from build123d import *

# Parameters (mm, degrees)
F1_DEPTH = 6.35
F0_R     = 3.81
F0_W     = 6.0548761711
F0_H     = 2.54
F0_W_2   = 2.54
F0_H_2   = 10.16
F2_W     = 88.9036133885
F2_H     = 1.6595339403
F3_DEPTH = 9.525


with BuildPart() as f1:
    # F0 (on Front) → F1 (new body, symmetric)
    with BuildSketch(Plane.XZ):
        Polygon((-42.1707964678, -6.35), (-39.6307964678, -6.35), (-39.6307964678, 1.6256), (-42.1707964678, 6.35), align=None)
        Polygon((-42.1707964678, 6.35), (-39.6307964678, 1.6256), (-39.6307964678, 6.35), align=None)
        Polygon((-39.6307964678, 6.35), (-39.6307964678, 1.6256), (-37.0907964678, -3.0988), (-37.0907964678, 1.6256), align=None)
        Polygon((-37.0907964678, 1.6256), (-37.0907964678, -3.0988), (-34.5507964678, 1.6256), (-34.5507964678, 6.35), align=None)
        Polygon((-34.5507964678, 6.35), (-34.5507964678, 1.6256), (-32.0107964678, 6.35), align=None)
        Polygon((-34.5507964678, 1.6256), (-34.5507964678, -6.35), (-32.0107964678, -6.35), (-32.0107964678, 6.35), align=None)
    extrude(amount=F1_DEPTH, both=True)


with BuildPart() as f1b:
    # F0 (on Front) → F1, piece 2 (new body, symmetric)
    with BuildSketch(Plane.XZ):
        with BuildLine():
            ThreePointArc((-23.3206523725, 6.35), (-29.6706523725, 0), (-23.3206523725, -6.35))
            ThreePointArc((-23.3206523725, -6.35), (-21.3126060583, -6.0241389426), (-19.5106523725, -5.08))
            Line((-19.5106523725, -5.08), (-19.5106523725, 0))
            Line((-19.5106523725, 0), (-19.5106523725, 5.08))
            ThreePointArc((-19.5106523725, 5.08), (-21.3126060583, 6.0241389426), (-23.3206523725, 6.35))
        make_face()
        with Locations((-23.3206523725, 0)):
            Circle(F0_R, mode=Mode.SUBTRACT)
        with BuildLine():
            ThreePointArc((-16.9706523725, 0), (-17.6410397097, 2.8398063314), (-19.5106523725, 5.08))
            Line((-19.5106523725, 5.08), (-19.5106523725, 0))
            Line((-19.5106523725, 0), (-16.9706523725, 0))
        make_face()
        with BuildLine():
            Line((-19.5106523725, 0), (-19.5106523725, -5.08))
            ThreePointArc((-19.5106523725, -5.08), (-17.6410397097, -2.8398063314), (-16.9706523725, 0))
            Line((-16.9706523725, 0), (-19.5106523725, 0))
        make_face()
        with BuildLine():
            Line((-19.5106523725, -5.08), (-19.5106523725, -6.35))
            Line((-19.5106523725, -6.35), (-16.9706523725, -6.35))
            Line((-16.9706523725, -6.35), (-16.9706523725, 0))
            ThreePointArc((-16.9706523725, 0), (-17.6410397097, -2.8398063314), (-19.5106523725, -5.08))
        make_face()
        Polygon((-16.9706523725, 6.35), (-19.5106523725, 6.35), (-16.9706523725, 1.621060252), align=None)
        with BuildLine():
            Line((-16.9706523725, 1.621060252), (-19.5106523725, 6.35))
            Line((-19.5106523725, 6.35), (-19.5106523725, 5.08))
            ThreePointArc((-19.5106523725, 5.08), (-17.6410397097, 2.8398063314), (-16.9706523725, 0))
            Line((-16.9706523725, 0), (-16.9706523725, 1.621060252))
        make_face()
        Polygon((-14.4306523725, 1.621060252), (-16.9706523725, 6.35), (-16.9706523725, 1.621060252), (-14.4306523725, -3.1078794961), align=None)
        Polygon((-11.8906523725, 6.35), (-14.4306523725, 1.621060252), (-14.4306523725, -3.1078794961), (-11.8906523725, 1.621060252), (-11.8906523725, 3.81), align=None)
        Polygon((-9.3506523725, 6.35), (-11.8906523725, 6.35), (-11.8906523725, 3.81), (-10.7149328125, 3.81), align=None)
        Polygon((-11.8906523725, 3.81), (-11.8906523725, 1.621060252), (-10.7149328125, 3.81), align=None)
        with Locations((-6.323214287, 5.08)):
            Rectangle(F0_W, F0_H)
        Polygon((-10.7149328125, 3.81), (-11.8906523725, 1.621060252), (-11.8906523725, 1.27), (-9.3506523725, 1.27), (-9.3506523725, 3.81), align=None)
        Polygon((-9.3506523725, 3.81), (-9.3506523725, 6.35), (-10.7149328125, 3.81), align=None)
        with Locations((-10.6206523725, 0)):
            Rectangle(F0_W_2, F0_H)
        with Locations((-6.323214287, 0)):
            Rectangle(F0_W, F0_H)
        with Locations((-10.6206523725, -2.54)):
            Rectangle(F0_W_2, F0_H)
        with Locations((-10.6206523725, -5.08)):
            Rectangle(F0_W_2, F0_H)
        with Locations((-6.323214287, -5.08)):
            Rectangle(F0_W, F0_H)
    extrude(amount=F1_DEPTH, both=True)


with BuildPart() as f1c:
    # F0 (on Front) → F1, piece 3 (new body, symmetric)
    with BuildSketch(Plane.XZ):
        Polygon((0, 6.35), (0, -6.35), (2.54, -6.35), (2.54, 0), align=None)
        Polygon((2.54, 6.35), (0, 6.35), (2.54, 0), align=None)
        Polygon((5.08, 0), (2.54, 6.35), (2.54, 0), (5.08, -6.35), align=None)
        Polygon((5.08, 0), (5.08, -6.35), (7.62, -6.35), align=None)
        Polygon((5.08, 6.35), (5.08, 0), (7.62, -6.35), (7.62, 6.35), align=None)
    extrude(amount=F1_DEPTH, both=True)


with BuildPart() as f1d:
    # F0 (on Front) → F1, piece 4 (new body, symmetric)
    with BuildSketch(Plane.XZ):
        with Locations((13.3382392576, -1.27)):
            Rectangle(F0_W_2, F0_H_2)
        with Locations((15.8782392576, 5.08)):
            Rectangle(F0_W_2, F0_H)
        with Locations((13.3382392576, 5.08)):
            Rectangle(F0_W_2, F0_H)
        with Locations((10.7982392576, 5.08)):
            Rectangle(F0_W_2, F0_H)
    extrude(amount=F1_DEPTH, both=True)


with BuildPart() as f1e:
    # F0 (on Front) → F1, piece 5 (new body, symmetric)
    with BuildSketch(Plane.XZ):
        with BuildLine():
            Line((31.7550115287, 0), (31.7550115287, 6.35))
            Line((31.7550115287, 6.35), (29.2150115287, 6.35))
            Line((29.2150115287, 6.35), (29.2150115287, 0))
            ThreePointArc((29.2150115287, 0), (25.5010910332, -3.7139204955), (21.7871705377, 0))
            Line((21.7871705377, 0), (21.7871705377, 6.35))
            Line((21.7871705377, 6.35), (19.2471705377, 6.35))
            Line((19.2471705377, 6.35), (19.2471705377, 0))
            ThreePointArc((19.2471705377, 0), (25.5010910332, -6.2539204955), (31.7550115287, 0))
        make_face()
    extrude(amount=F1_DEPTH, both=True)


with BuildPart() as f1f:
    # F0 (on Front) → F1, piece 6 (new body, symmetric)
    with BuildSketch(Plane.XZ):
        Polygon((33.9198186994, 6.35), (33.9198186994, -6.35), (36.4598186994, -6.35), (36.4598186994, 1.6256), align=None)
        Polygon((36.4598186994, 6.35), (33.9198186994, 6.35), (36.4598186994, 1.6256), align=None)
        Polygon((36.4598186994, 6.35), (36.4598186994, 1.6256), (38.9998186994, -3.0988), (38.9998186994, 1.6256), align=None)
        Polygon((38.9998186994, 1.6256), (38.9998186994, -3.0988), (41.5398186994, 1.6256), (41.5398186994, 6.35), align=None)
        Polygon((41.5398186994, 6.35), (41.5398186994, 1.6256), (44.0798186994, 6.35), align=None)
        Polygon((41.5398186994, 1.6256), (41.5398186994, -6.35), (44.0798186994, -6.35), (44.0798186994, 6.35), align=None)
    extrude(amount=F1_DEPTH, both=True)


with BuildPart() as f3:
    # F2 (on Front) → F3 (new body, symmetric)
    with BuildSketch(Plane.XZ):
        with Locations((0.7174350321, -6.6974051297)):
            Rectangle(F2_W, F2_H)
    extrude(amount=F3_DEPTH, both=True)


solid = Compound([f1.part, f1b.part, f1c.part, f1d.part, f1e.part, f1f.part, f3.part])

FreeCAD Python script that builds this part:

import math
import FreeCAD as App
import Part
import Sketcher

V = App.Vector
Q = App.Units.Quantity


def add_polygon(sketch, points):
    """Adds a closed chain of lines whose ends are joined by coincident constraints."""
    first, n = sketch.GeometryCount, len(points)
    for a, b in zip(points, points[1:] + points[:1]):
        sketch.addGeometry(Part.LineSegment(App.Vector(*a, 0), App.Vector(*b, 0)), False)
    for i in range(n):
        sketch.addConstraint(Sketcher.Constraint("Coincident", first + i, 2, first + (i + 1) % n, 1))

doc = App.newDocument("Part")
body = doc.addObject("PartDesign::Body", "Body")

sketch1 = body.newObject("Sketcher::SketchObject", "Sketch")
sketch1.AttachmentSupport = (doc.getObject("XZ_Plane"), [""])
sketch1.MapMode = "FlatFace"
add_polygon(sketch1, [(-42.170796, -6.35), (-39.630796, -6.35), (-39.630796, 1.6256), (-37.090796, -3.0988), (-34.550796, 1.6256), (-34.550796, -6.35), (-32.010796, -6.35), (-32.010796, 6.35), (-34.550796, 6.35), (-37.090796, 1.6256), (-39.630796, 6.35), (-42.170796, 6.35)])
sketch1.addConstraint([
    Sketcher.Constraint("Horizontal", 0),
    Sketcher.Constraint("Vertical", 1),
    Sketcher.Constraint("Vertical", 4),
    Sketcher.Constraint("Horizontal", 5),
    Sketcher.Constraint("Vertical", 6),
    Sketcher.Constraint("Horizontal", 7),
    Sketcher.Constraint("Horizontal", 10),
    Sketcher.Constraint("Vertical", 11),
    Sketcher.Constraint("Symmetric", 4, 2, 7, 2, -1),
    Sketcher.Constraint("Symmetric", 0, 2, 9, 2, -1),
    Sketcher.Constraint("Parallel", 3, 8),
    Sketcher.Constraint("Parallel", 2, 9),
    Sketcher.Constraint("Horizontal", 1, 2, 3, 2),
    Sketcher.Constraint("Horizontal", 0, 2, 4, 2),
    Sketcher.Constraint("Horizontal", 3, 2, 8, 2),
    Sketcher.Constraint("Equal", 0, 5),
    Sketcher.Constraint("Equal", 2, 3),
    Sketcher.Constraint("DistanceX", 0, 1, 0, 2, Q("0.1 in")),
    Sketcher.Constraint("DistanceY", 6, 1, 6, 2, Q("0.5 in")),
    Sketcher.Constraint("DistanceX", 0, 2, 2, 2, Q("0.1 in")),
    Sketcher.Constraint("DistanceY", 1, 1, 1, 2, Q("0.314 in")),
    Sketcher.Constraint("DistanceX", 0, 2, -1, 1, 39.630796),
])
pad1 = body.newObject("PartDesign::Pad", "Pad")
pad1.Profile = sketch1
pad1.Length = Q("0.5 in")
pad1.Midplane = True
body2 = doc.addObject("PartDesign::Body", "Body001")

sketch2 = body2.newObject("Sketcher::SketchObject", "Sketch001")
sketch2.AttachmentSupport = (doc.getObject("XZ_Plane001"), [""])
sketch2.MapMode = "FlatFace"
sketch2.addGeometry([
    Part.ArcOfCircle(Part.Circle(V(-23.320652, 0, 0), V(0, 0, 1), 6.35), math.radians(-90), math.radians(-53.130102)),
    Part.LineSegment(V(-19.510652, -5.08, 0), V(-19.510652, -6.35, 0)),
    Part.LineSegment(V(-19.510652, -6.35, 0), V(-16.970652, -6.35, 0)),
    Part.LineSegment(V(-16.970652, -6.35, 0), V(-16.970652, 1.62106, 0)),
    Part.LineSegment(V(-16.970652, 1.62106, 0), V(-14.430652, -3.107879, 0)),
    Part.LineSegment(V(-14.430652, -3.107879, 0), V(-11.890652, 1.62106, 0)),
    Part.LineSegment(V(-11.890652, 1.62106, 0), V(-11.890652, -6.35, 0)),
    Part.LineSegment(V(-11.890652, -6.35, 0), V(-3.295776, -6.35, 0)),
    Part.LineSegment(V(-3.295776, -6.35, 0), V(-3.295776, -3.81, 0)),
    Part.LineSegment(V(-3.295776, -3.81, 0), V(-9.350652, -3.81, 0)),
    Part.LineSegment(V(-9.350652, -3.81, 0), V(-9.350652, -1.27, 0)),
    Part.LineSegment(V(-9.350652, -1.27, 0), V(-3.295776, -1.27, 0)),
    Part.LineSegment(V(-3.295776, -1.27, 0), V(-3.295776, 1.27, 0)),
    Part.LineSegment(V(-3.295776, 1.27, 0), V(-9.350652, 1.27, 0)),
    Part.LineSegment(V(-9.350652, 1.27, 0), V(-9.350652, 3.81, 0)),
    Part.LineSegment(V(-9.350652, 3.81, 0), V(-3.295776, 3.81, 0)),
    Part.LineSegment(V(-3.295776, 3.81, 0), V(-3.295776, 6.35, 0)),
    Part.LineSegment(V(-3.295776, 6.35, 0), V(-11.890652, 6.35, 0)),
    Part.LineSegment(V(-11.890652, 6.35, 0), V(-14.430652, 1.62106, 0)),
    Part.LineSegment(V(-14.430652, 1.62106, 0), V(-16.970652, 6.35, 0)),
    Part.LineSegment(V(-16.970652, 6.35, 0), V(-19.510652, 6.35, 0)),
    Part.LineSegment(V(-19.510652, 6.35, 0), V(-19.510652, 5.08, 0)),
    Part.ArcOfCircle(Part.Circle(V(-23.320652, 0, 0), V(0, 0, 1), 6.35), math.radians(53.130102), math.radians(90)),
    Part.ArcOfCircle(Part.Circle(V(-23.320652, 0, 0), V(0, 0, 1), 6.35), math.radians(90), math.radians(270)),
    Part.Circle(V(-23.320652, 0, 0), V(0, 0, 1), 3.81),
], False)
sketch2.addConstraint([
    Sketcher.Constraint("Coincident", 0, 2, 1, 1),
    Sketcher.Constraint("Coincident", 1, 2, 2, 1),
    Sketcher.Constraint("Coincident", 2, 2, 3, 1),
    Sketcher.Constraint("Coincident", 3, 2, 4, 1),
    Sketcher.Constraint("Coincident", 4, 2, 5, 1),
    Sketcher.Constraint("Coincident", 5, 2, 6, 1),
    Sketcher.Constraint("Coincident", 6, 2, 7, 1),
    Sketcher.Constraint("Coincident", 7, 2, 8, 1),
    Sketcher.Constraint("Coincident", 8, 2, 9, 1),
    Sketcher.Constraint("Coincident", 9, 2, 10, 1),
    Sketcher.Constraint("Coincident", 10, 2, 11, 1),
    Sketcher.Constraint("Coincident", 11, 2, 12, 1),
    Sketcher.Constraint("Coincident", 12, 2, 13, 1),
    Sketcher.Constraint("Coincident", 13, 2, 14, 1),
    Sketcher.Constraint("Coincident", 14, 2, 15, 1),
    Sketcher.Constraint("Coincident", 15, 2, 16, 1),
    Sketcher.Constraint("Coincident", 16, 2, 17, 1),
    Sketcher.Constraint("Coincident", 17, 2, 18, 1),
    Sketcher.Constraint("Coincident", 18, 2, 19, 1),
    Sketcher.Constraint("Coincident", 19, 2, 20, 1),
    Sketcher.Constraint("Coincident", 20, 2, 21, 1),
    Sketcher.Constraint("Coincident", 21, 2, 22, 1),
    Sketcher.Constraint("Tangent", 22, 2, 23, 1),
    Sketcher.Constraint("Tangent", 23, 2, 0, 1),
    Sketcher.Constraint("Vertical", 1),
    Sketcher.Constraint("Horizontal", 2),
    Sketcher.Constraint("Vertical", 3),
    Sketcher.Constraint("Vertical", 6),
    Sketcher.Constraint("Horizontal", 7),
    Sketcher.Constraint("Vertical", 8),
    Sketcher.Constraint("Horizontal", 9),
    Sketcher.Constraint("Vertical", 10),
    Sketcher.Constraint("Horizontal", 11),
    Sketcher.Constraint("Vertical", 12),
    Sketcher.Constraint("Horizontal", 13),
    Sketcher.Constraint("Vertical", 14),
    Sketcher.Constraint("Horizontal", 15),
    Sketcher.Constraint("Vertical", 16),
    Sketcher.Constraint("Horizontal", 17),
    Sketcher.Constraint("Horizontal", 20),
    Sketcher.Constraint("Vertical", 21),
    Sketcher.Constraint("Coincident", 24, 3, 0, 3),
    Sketcher.Constraint("Equal", 0, 22),
    Sketcher.Constraint("Equal", 22, 23),
    Sketcher.Constraint("Symmetric", 10, 2, 13, 2, -1),
    Sketcher.Constraint("Symmetric", 8, 2, 15, 2, -1),
    Sketcher.Constraint("Symmetric", 6, 2, 17, 2, -1),
    Sketcher.Constraint("Symmetric", 2, 2, 19, 2, -1),
    Sketcher.Constraint("Symmetric", 0, 2, 21, 2, -1),
    Sketcher.Constraint("Parallel", 5, 18),
    Sketcher.Constraint("Parallel", 4, 19),
    Sketcher.Constraint("Horizontal", 3, 2, 5, 2),
    Sketcher.Constraint("Horizontal", 2, 2, 6, 2),
    Sketcher.Constraint("Horizontal", 5, 2, 18, 2),
    Sketcher.Constraint("Horizontal", 20, 2, 22, 2),
    Sketcher.Constraint("Vertical", 8, 2, 11, 2),
    Sketcher.Constraint("Vertical", 24, 3, 22, 2),
    Sketcher.Constraint("Vertical", 22, 2, 23, 2),
    Sketcher.Constraint("Equal", 20, 8),
    Sketcher.Constraint("Equal", 8, 10),
    Sketcher.Constraint("Equal", 10, 12),
    Sketcher.Constraint("Equal", 4, 5),
    Sketcher.Constraint("Diameter", 24, Q("0.3 in")),
    Sketcher.Constraint("Radius", 0, Q("0.25 in")),
    Sketcher.Constraint("DistanceY", 1, 2, 1, 1, Q("0.05 in")),
    Sketcher.Constraint("DistanceX", 2, 2, 4, 2, Q("0.1 in")),
    Sketcher.Constraint("DistanceX", 6, 2, 9, 2, Q("0.1 in")),
    Sketcher.Constraint("DistanceY", 3, 1, 3, 2, 7.97106),
    Sketcher.Constraint("DistanceX", 7, 1, 7, 2, 8.594876),
    Sketcher.Constraint("DistanceX", 0, 3, -1, 1, 23.320652),
])
pad2 = body2.newObject("PartDesign::Pad", "Pad001")
pad2.Profile = sketch2
pad2.Length = Q("0.5 in")
pad2.Midplane = True
body3 = doc.addObject("PartDesign::Body", "Body002")

sketch3 = body3.newObject("Sketcher::SketchObject", "Sketch002")
sketch3.AttachmentSupport = (doc.getObject("XZ_Plane002"), [""])
sketch3.MapMode = "FlatFace"
add_polygon(sketch3, [(0, 6.35), (0, -6.35), (2.54, -6.35), (2.54, 0), (5.08, -6.35), (7.62, -6.35), (7.62, 6.35), (5.08, 6.35), (5.08, 0), (2.54, 6.35)])
sketch3.addConstraint([
    Sketcher.Constraint("Vertical", 0),
    Sketcher.Constraint("Horizontal", 1),
    Sketcher.Constraint("Vertical", 2),
    Sketcher.Constraint("Horizontal", 4),
    Sketcher.Constraint("Vertical", 5),
    Sketcher.Constraint("Horizontal", 6),
    Sketcher.Constraint("Vertical", 7),
    Sketcher.Constraint("Horizontal", 9),
    Sketcher.Constraint("Symmetric", 0, 2, 9, 2, -1, 1),
    Sketcher.Constraint("Symmetric", 3, 2, 6, 2, -1),
    Sketcher.Constraint("PointOnObject", 2, 2, -1),
    Sketcher.Constraint("PointOnObject", 7, 2, -1),
    Sketcher.Constraint("Parallel", 3, 8),
    Sketcher.Constraint("Horizontal", 1, 2, 3, 2),
    Sketcher.Constraint("Equal", 1, 4),
    Sketcher.Constraint("DistanceX", 1, 1, 1, 2, Q("0.1 in")),
    Sketcher.Constraint("DistanceY", 0, 2, 0, 1, Q("0.5 in")),
    Sketcher.Constraint("DistanceX", -1, 1, 3, 2, Q("0.2 in")),
])
pad3 = body3.newObject("PartDesign::Pad", "Pad002")
pad3.Profile = sketch3
pad3.Length = Q("0.5 in")
pad3.Midplane = True
body4 = doc.addObject("PartDesign::Body", "Body003")

sketch4 = body4.newObject("Sketcher::SketchObject", "Sketch003")
sketch4.AttachmentSupport = (doc.getObject("XZ_Plane003"), [""])
sketch4.MapMode = "FlatFace"
add_polygon(sketch4, [(12.068239, -6.35), (14.608239, -6.35), (14.608239, 3.81), (17.148239, 3.81), (17.148239, 6.35), (9.528239, 6.35), (9.528239, 3.81), (12.068239, 3.81)])
sketch4.addConstraint([
    Sketcher.Constraint("Horizontal", 0),
    Sketcher.Constraint("Vertical", 1),
    Sketcher.Constraint("Horizontal", 2),
    Sketcher.Constraint("Vertical", 3),
    Sketcher.Constraint("Horizontal", 4),
    Sketcher.Constraint("Vertical", 5),
    Sketcher.Constraint("Horizontal", 6),
    Sketcher.Constraint("Vertical", 7),
    Sketcher.Constraint("Horizontal", 2, 2, 5, 2),
    Sketcher.Constraint("Equal", 0, 2),
    Sketcher.Constraint("Equal", 2, 6),
    Sketcher.Constraint("Equal", 6, 3),
    Sketcher.Constraint("DistanceX", 0, 1, 0, 2, Q("0.1 in")),
    Sketcher.Constraint("DistanceY", 1, 1, 1, 2, Q("0.4 in")),
    Sketcher.Constraint("DistanceY", 0, 2, -1, 1, Q("0.25 in")),
    Sketcher.Constraint("DistanceX", -1, 1, 0, 2, 14.608239),
])
pad4 = body4.newObject("PartDesign::Pad", "Pad003")
pad4.Profile = sketch4
pad4.Length = Q("0.5 in")
pad4.Midplane = True
body5 = doc.addObject("PartDesign::Body", "Body004")

sketch5 = body5.newObject("Sketcher::SketchObject", "Sketch004")
sketch5.AttachmentSupport = (doc.getObject("XZ_Plane004"), [""])
sketch5.MapMode = "FlatFace"
sketch5.addGeometry([
    Part.LineSegment(V(31.755012, 0, 0), V(31.755012, 6.35, 0)),
    Part.LineSegment(V(31.755012, 6.35, 0), V(29.215012, 6.35, 0)),
    Part.LineSegment(V(29.215012, 6.35, 0), V(29.215012, 0, 0)),
    Part.ArcOfCircle(Part.Circle(V(25.501091, 0, 0), V(0, 0, 1), 3.71392), math.radians(180), math.radians(360)),
    Part.LineSegment(V(21.787171, 0, 0), V(21.787171, 6.35, 0)),
    Part.LineSegment(V(21.787171, 6.35, 0), V(19.247171, 6.35, 0)),
    Part.LineSegment(V(19.247171, 6.35, 0), V(19.247171, 0, 0)),
    Part.ArcOfCircle(Part.Circle(V(25.501091, 0, 0), V(0, 0, 1), 6.25392), math.radians(180), math.radians(360)),
], False)
sketch5.addConstraint([
    Sketcher.Constraint("Coincident", 0, 2, 1, 1),
    Sketcher.Constraint("Coincident", 1, 2, 2, 1),
    Sketcher.Constraint("Tangent", 2, 2, 3, 2),
    Sketcher.Constraint("Tangent", 3, 1, 4, 1),
    Sketcher.Constraint("Coincident", 4, 2, 5, 1),
    Sketcher.Constraint("Coincident", 5, 2, 6, 1),
    Sketcher.Constraint("Tangent", 6, 2, 7, 1),
    Sketcher.Constraint("Tangent", 7, 2, 0, 1),
    Sketcher.Constraint("Vertical", 0),
    Sketcher.Constraint("Horizontal", 1),
    Sketcher.Constraint("Vertical", 2),
    Sketcher.Constraint("Vertical", 4),
    Sketcher.Constraint("Horizontal", 5),
    Sketcher.Constraint("Vertical", 6),
    Sketcher.Constraint("Coincident", 7, 3, 3, 3),
    Sketcher.Constraint("PointOnObject", 3, 3, -1),
    Sketcher.Constraint("Horizontal", 1, 2, 4, 2),
    Sketcher.Constraint("DistanceX", 1, 2, 1, 1, Q("0.1 in")),
    Sketcher.Constraint("DistanceY", 0, 1, 0, 2, Q("0.25 in")),
    Sketcher.Constraint("Radius", 3, 3.71392),
    Sketcher.Constraint("DistanceX", -1, 1, 3, 3, 25.501091),
])
pad5 = body5.newObject("PartDesign::Pad", "Pad004")
pad5.Profile = sketch5
pad5.Length = Q("0.5 in")
pad5.Midplane = True
body6 = doc.addObject("PartDesign::Body", "Body005")

sketch6 = body6.newObject("Sketcher::SketchObject", "Sketch005")
sketch6.AttachmentSupport = (doc.getObject("XZ_Plane005"), [""])
sketch6.MapMode = "FlatFace"
add_polygon(sketch6, [(33.919819, 6.35), (33.919819, -6.35), (36.459819, -6.35), (36.459819, 1.6256), (38.999819, -3.0988), (41.539819, 1.6256), (41.539819, -6.35), (44.079819, -6.35), (44.079819, 6.35), (41.539819, 6.35), (38.999819, 1.6256), (36.459819, 6.35)])
sketch6.addConstraint([
    Sketcher.Constraint("Vertical", 0),
    Sketcher.Constraint("Horizontal", 1),
    Sketcher.Constraint("Vertical", 2),
    Sketcher.Constraint("Vertical", 5),
    Sketcher.Constraint("Horizontal", 6),
    Sketcher.Constraint("Vertical", 7),
    Sketcher.Constraint("Horizontal", 8),
    Sketcher.Constraint("Horizontal", 11),
    Sketcher.Constraint("Symmetric", 5, 2, 8, 2, -1),
    Sketcher.Constraint("Symmetric", 1, 2, 10, 2, -1),
    Sketcher.Constraint("Parallel", 4, 9),
    Sketcher.Constraint("Parallel", 3, 10),
    Sketcher.Constraint("Horizontal", 2, 2, 4, 2),
    Sketcher.Constraint("Horizontal", 1, 2, 5, 2),
    Sketcher.Constraint("Horizontal", 4, 2, 9, 2),
    Sketcher.Constraint("Equal", 1, 6),
    Sketcher.Constraint("Equal", 3, 4),
    Sketcher.Constraint("DistanceX", 1, 1, 1, 2, Q("0.1 in")),
    Sketcher.Constraint("DistanceY", 0, 2, 0, 1, Q("0.5 in")),
    Sketcher.Constraint("DistanceX", 1, 2, 3, 2, Q("0.1 in")),
    Sketcher.Constraint("DistanceY", 2, 1, 2, 2, Q("0.314 in")),
    Sketcher.Constraint("DistanceX", -1, 1, 0, 2, 33.919819),
])
pad6 = body6.newObject("PartDesign::Pad", "Pad005")
pad6.Profile = sketch6
pad6.Length = Q("0.5 in")
pad6.Midplane = True
body7 = doc.addObject("PartDesign::Body", "Body006")

sketch7 = body7.newObject("Sketcher::SketchObject", "Sketch006")
sketch7.AttachmentSupport = (doc.getObject("XZ_Plane006"), [""])
sketch7.MapMode = "FlatFace"
add_polygon(sketch7, [(-43.734372, -5.867638), (-43.734372, -7.527172), (45.169242, -7.527172), (45.169242, -5.867638)])
sketch7.addConstraint([
    Sketcher.Constraint("Vertical", 0),
    Sketcher.Constraint("Horizontal", 1),
    Sketcher.Constraint("Vertical", 2),
    Sketcher.Constraint("Horizontal", 3),
    Sketcher.Constraint("DistanceX", 1, 1, 1, 2, 88.903613),
    Sketcher.Constraint("DistanceY", 0, 2, 0, 1, 1.659534),
    Sketcher.Constraint("DistanceX", 0, 2, -1, 1, 43.734372),
    Sketcher.Constraint("DistanceY", 2, 2, -1, 1, 5.867638),
])
pad7 = body7.newObject("PartDesign::Pad", "Pad006")
pad7.Profile = sketch7
pad7.Length = Q("0.75 in")
pad7.Midplane = True

doc.recompute()
